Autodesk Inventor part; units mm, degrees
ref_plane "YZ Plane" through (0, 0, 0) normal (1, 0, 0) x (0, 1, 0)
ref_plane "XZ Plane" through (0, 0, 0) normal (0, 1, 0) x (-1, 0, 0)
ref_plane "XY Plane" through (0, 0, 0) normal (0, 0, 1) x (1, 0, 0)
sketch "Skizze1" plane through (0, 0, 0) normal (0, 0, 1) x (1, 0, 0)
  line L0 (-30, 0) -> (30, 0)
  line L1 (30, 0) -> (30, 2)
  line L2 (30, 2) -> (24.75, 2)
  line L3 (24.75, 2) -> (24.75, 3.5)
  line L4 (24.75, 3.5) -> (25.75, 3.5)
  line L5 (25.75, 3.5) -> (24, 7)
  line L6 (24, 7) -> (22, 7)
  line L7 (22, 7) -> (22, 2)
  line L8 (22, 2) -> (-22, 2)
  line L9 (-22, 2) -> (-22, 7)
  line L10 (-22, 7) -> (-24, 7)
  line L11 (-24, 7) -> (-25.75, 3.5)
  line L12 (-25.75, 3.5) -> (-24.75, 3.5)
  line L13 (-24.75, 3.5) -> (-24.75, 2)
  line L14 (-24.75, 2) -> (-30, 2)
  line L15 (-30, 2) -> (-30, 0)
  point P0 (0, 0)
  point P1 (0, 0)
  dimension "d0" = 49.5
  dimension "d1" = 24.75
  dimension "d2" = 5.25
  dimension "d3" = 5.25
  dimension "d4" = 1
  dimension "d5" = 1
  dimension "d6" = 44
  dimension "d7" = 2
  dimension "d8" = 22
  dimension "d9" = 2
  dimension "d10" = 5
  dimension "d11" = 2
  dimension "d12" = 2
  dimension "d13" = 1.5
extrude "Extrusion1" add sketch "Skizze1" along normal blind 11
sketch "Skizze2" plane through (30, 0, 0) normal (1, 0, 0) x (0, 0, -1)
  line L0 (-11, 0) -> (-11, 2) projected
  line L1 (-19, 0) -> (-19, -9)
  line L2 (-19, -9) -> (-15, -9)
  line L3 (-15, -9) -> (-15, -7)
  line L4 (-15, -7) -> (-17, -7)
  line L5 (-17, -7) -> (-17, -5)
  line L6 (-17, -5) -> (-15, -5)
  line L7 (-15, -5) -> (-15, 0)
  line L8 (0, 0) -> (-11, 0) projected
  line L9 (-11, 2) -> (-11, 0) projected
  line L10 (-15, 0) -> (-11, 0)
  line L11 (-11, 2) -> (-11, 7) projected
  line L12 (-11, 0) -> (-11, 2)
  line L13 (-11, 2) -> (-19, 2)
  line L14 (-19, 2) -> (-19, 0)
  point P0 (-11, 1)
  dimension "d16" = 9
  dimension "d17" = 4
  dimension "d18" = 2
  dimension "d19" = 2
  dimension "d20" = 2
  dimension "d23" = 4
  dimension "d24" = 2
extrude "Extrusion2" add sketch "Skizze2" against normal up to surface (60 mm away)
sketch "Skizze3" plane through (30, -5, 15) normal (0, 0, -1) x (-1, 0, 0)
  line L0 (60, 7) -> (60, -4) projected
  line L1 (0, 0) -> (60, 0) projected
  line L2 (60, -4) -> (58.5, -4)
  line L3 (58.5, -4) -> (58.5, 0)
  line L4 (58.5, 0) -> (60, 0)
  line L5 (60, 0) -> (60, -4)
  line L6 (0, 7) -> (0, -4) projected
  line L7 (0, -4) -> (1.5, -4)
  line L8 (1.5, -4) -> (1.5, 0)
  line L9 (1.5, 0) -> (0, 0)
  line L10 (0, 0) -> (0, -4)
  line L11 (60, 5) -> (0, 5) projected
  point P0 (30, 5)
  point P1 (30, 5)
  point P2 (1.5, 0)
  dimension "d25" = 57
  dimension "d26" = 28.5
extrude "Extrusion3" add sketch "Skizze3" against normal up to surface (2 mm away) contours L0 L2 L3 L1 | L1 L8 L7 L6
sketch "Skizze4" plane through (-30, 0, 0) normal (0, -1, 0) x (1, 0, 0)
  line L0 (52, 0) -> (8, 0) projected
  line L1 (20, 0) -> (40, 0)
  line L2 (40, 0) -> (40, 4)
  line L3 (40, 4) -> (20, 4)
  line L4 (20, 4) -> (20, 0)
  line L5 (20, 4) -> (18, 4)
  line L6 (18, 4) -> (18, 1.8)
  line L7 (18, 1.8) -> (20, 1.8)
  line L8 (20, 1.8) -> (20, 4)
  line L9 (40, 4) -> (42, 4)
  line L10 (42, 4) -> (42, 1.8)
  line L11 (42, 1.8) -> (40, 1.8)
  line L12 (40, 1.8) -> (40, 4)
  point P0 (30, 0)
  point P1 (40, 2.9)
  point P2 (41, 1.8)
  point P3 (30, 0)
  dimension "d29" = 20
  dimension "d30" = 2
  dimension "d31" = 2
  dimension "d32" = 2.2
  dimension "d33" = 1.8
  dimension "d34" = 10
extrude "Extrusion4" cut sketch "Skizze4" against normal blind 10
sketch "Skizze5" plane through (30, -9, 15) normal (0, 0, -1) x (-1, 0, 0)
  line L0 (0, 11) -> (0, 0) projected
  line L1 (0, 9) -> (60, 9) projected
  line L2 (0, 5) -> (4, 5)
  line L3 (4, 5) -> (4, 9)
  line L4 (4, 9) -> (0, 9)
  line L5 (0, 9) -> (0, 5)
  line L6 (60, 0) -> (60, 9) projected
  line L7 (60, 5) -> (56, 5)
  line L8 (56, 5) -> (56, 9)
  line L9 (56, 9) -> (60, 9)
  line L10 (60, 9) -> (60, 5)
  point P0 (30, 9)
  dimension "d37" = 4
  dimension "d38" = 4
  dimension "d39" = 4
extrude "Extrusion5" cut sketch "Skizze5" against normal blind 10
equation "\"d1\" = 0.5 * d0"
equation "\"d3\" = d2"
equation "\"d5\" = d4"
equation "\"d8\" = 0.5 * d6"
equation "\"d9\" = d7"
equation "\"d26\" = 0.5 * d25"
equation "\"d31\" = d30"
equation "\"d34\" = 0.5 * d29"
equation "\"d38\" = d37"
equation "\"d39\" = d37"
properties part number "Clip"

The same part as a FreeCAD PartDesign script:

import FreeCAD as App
import Part
import Sketcher

V = App.Vector
Q = App.Units.Quantity

doc = App.newDocument("Part")
body = doc.addObject("PartDesign::Body", "Body")

sketch1 = body.newObject("Sketcher::SketchObject", "Sketch")
sketch1.AttachmentSupport = (doc.getObject("XY_Plane"), [""])
sketch1.MapMode = "FlatFace"
sketch1.addGeometry(Part.LineSegment(V(-30, 2, 0), V(-30, 0, 0)), False)
sketch1.addGeometry(Part.LineSegment(V(-30, 0, 0), V(30, 0, 0)), False)
sketch1.addGeometry(Part.LineSegment(V(30, 0, 0), V(30, 2, 0)), False)
sketch1.addGeometry(Part.LineSegment(V(30, 2, 0), V(24.8, 2, 0)), False)
sketch1.addGeometry(Part.LineSegment(V(24.8, 2, 0), V(24.8, 3.5, 0)), False)
sketch1.addGeometry(Part.LineSegment(V(24.8, 3.5, 0), V(25.8, 3.5, 0)), False)
sketch1.addGeometry(Part.LineSegment(V(25.8, 3.5, 0), V(24, 7, 0)), False)
sketch1.addGeometry(Part.LineSegment(V(24, 7, 0), V(22, 7, 0)), False)
sketch1.addGeometry(Part.LineSegment(V(22, 7, 0), V(22, 2, 0)), False)
sketch1.addGeometry(Part.LineSegment(V(22, 2, 0), V(-22, 2, 0)), False)
sketch1.addGeometry(Part.LineSegment(V(-22, 2, 0), V(-22, 7, 0)), False)
sketch1.addGeometry(Part.LineSegment(V(-22, 7, 0), V(-24, 7, 0)), False)
sketch1.addGeometry(Part.LineSegment(V(-24, 7, 0), V(-25.8, 3.5, 0)), False)
sketch1.addGeometry(Part.LineSegment(V(-25.8, 3.5, 0), V(-24.8, 3.5, 0)), False)
sketch1.addGeometry(Part.LineSegment(V(-24.8, 3.5, 0), V(-24.8, 2, 0)), False)
sketch1.addGeometry(Part.LineSegment(V(-24.8, 2, 0), V(-30, 2, 0)), False)
sketch1.addConstraint(Sketcher.Constraint("Coincident", 0, 2, 1, 1))
sketch1.addConstraint(Sketcher.Constraint("Coincident", 1, 2, 2, 1))
sketch1.addConstraint(Sketcher.Constraint("Coincident", 2, 2, 3, 1))
sketch1.addConstraint(Sketcher.Constraint("Coincident", 3, 2, 4, 1))
sketch1.addConstraint(Sketcher.Constraint("Coincident", 4, 2, 5, 1))
sketch1.addConstraint(Sketcher.Constraint("Coincident", 5, 2, 6, 1))
sketch1.addConstraint(Sketcher.Constraint("Coincident", 6, 2, 7, 1))
sketch1.addConstraint(Sketcher.Constraint("Coincident", 7, 2, 8, 1))
sketch1.addConstraint(Sketcher.Constraint("Coincident", 8, 2, 9, 1))
sketch1.addConstraint(Sketcher.Constraint("Coincident", 9, 2, 10, 1))
sketch1.addConstraint(Sketcher.Constraint("Coincident", 10, 2, 11, 1))
sketch1.addConstraint(Sketcher.Constraint("Coincident", 11, 2, 12, 1))
sketch1.addConstraint(Sketcher.Constraint("Coincident", 12, 2, 13, 1))
sketch1.addConstraint(Sketcher.Constraint("Coincident", 13, 2, 14, 1))
sketch1.addConstraint(Sketcher.Constraint("Coincident", 14, 2, 15, 1))
sketch1.addConstraint(Sketcher.Constraint("Coincident", 15, 2, 0, 1))
sketch1.addConstraint(Sketcher.Constraint("Vertical", 0))
sketch1.addConstraint(Sketcher.Constraint("Horizontal", 1))
sketch1.addConstraint(Sketcher.Constraint("Vertical", 2))
sketch1.addConstraint(Sketcher.Constraint("Horizontal", 3))
sketch1.addConstraint(Sketcher.Constraint("Vertical", 4))
sketch1.addConstraint(Sketcher.Constraint("Horizontal", 5))
sketch1.addConstraint(Sketcher.Constraint("Horizontal", 7))
sketch1.addConstraint(Sketcher.Constraint("Vertical", 8))
sketch1.addConstraint(Sketcher.Constraint("Horizontal", 9))
sketch1.addConstraint(Sketcher.Constraint("Vertical", 10))
sketch1.addConstraint(Sketcher.Constraint("Horizontal", 11))
sketch1.addConstraint(Sketcher.Constraint("Horizontal", 13))
sketch1.addConstraint(Sketcher.Constraint("Vertical", 14))
sketch1.addConstraint(Sketcher.Constraint("Horizontal", 15))
sketch1.addConstraint(Sketcher.Constraint("Symmetric", 0, 2, 1, 2, -1, 1))
sketch1.addConstraint(Sketcher.Constraint("Symmetric", 7, 2, 10, 2, -2))
sketch1.addConstraint(Sketcher.Constraint("Symmetric", 5, 2, 12, 2, -2))
sketch1.addConstraint(Sketcher.Constraint("Symmetric", 3, 2, 14, 2, -2))
sketch1.addConstraint(Sketcher.Constraint("Horizontal", 3, 2, 8, 2))
sketch1.addConstraint(Sketcher.Constraint("Equal", 7, 11))
sketch1.addConstraint(Sketcher.Constraint("Equal", 11, 0))
sketch1.addConstraint(Sketcher.Constraint("DistanceX", 5, 1, 5, 2, Q("1 mm")))
sketch1.addConstraint(Sketcher.Constraint("DistanceX", 7, 2, 7, 1, Q("2 mm")))
sketch1.addConstraint(Sketcher.Constraint("DistanceX", 9, 2, 9, 1, Q("44 mm")))
sketch1.addConstraint(Sketcher.Constraint("DistanceY", 8, 2, 8, 1, Q("5 mm")))
sketch1.addConstraint(Sketcher.Constraint("DistanceY", 4, 1, 4, 2, Q("1.5 mm")))
sketch1.addConstraint(Sketcher.Constraint("DistanceX", 3, 2, 3, 1, Q("5.25 mm")))
sketch1.addConstraint(Sketcher.Constraint("DistanceX", 1, 1, 1, 2, Q("60 mm")))
pad1 = body.newObject("PartDesign::Pad", "Pad")
pad1.Profile = sketch1
pad1.Length = 11

sketch2 = body.newObject("Sketcher::SketchObject", "Sketch001")
sketch2.AttachmentSupport = (doc.getObject("YZ_Plane"), [""])
sketch2.MapMode = "FlatFace"
sketch2.AttachmentOffset = App.Placement(V(0, 0, 30), App.Rotation())
sketch2.addGeometry(Part.LineSegment(V(0, 15, 0), V(0, 11, 0)), False)
sketch2.addGeometry(Part.LineSegment(V(0, 11, 0), V(2, 11, 0)), False)
sketch2.addGeometry(Part.LineSegment(V(2, 11, 0), V(2, 19, 0)), False)
sketch2.addGeometry(Part.LineSegment(V(2, 19, 0), V(-9, 19, 0)), False)
sketch2.addGeometry(Part.LineSegment(V(-9, 19, 0), V(-9, 15, 0)), False)
sketch2.addGeometry(Part.LineSegment(V(-9, 15, 0), V(-7, 15, 0)), False)
sketch2.addGeometry(Part.LineSegment(V(-7, 15, 0), V(-7, 17, 0)), False)
sketch2.addGeometry(Part.LineSegment(V(-7, 17, 0), V(-5, 17, 0)), False)
sketch2.addGeometry(Part.LineSegment(V(-5, 17, 0), V(-5, 15, 0)), False)
sketch2.addGeometry(Part.LineSegment(V(-5, 15, 0), V(0, 15, 0)), False)
sketch2.addConstraint(Sketcher.Constraint("Coincident", 0, 2, 1, 1))
sketch2.addConstraint(Sketcher.Constraint("Coincident", 1, 2, 2, 1))
sketch2.addConstraint(Sketcher.Constraint("Coincident", 2, 2, 3, 1))
sketch2.addConstraint(Sketcher.Constraint("Coincident", 3, 2, 4, 1))
sketch2.addConstraint(Sketcher.Constraint("Coincident", 4, 2, 5, 1))
sketch2.addConstraint(Sketcher.Constraint("Coincident", 5, 2, 6, 1))
sketch2.addConstraint(Sketcher.Constraint("Coincident", 6, 2, 7, 1))
sketch2.addConstraint(Sketcher.Constraint("Coincident", 7, 2, 8, 1))
sketch2.addConstraint(Sketcher.Constraint("Coincident", 8, 2, 9, 1))
sketch2.addConstraint(Sketcher.Constraint("Coincident", 9, 2, 0, 1))
sketch2.addConstraint(Sketcher.Constraint("Vertical", 0))
sketch2.addConstraint(Sketcher.Constraint("Horizontal", 1))
sketch2.addConstraint(Sketcher.Constraint("Vertical", 2))
sketch2.addConstraint(Sketcher.Constraint("Horizontal", 3))
sketch2.addConstraint(Sketcher.Constraint("Vertical", 4))
sketch2.addConstraint(Sketcher.Constraint("Horizontal", 5))
sketch2.addConstraint(Sketcher.Constraint("Vertical", 6))
sketch2.addConstraint(Sketcher.Constraint("Horizontal", 7))
sketch2.addConstraint(Sketcher.Constraint("Vertical", 8))
sketch2.addConstraint(Sketcher.Constraint("Horizontal", 9))
sketch2.addConstraint(Sketcher.Constraint("PointOnObject", 0, 2, -2))
sketch2.addConstraint(Sketcher.Constraint("Horizontal", 5, 2, 8, 2))
sketch2.addConstraint(Sketcher.Constraint("Equal", 1, 5))
sketch2.addConstraint(Sketcher.Constraint("Equal", 5, 7))
sketch2.addConstraint(Sketcher.Constraint("Equal", 0, 4))
sketch2.addConstraint(Sketcher.Constraint("Equal", 7, 6))
sketch2.addConstraint(Sketcher.Constraint("DistanceX", 1, 1, 1, 2, Q("2 mm")))
sketch2.addConstraint(Sketcher.Constraint("DistanceY", 0, 2, 0, 1, Q("4 mm")))
sketch2.addConstraint(Sketcher.Constraint("DistanceX", 3, 2, -1, 1, Q("9 mm")))
sketch2.addConstraint(Sketcher.Constraint("DistanceY", -1, 1, 0, 2, Q("11 mm")))
pad2 = body.newObject("PartDesign::Pad", "Pad001")
pad2.Profile = sketch2
pad2.Length = 60
pad2.Reversed = True

sketch3 = body.newObject("Sketcher::SketchObject", "Sketch002")
sketch3.AttachmentSupport = (doc.getObject("XY_Plane"), [""])
sketch3.MapMode = "FlatFace"
sketch3.AttachmentOffset = App.Placement(V(0, 0, 15), App.Rotation())
sketch3.addGeometry(Part.LineSegment(V(-30, -9, 0), V(-30, -5, 0)), False)
sketch3.addGeometry(Part.LineSegment(V(-30, -5, 0), V(-28.5, -5, 0)), False)
sketch3.addGeometry(Part.LineSegment(V(-28.5, -5, 0), V(-28.5, -9, 0)), False)
sketch3.addGeometry(Part.LineSegment(V(-28.5, -9, 0), V(-30, -9, 0)), False)
sketch3.addGeometry(Part.LineSegment(V(28.5, -5, 0), V(30, -5, 0)), False)
sketch3.addGeometry(Part.LineSegment(V(30, -5, 0), V(30, -9, 0)), False)
sketch3.addGeometry(Part.LineSegment(V(30, -9, 0), V(28.5, -9, 0)), False)
sketch3.addGeometry(Part.LineSegment(V(28.5, -9, 0), V(28.5, -5, 0)), False)
sketch3.addConstraint(Sketcher.Constraint("Coincident", 0, 2, 1, 1))
sketch3.addConstraint(Sketcher.Constraint("Coincident", 1, 2, 2, 1))
sketch3.addConstraint(Sketcher.Constraint("Coincident", 2, 2, 3, 1))
sketch3.addConstraint(Sketcher.Constraint("Coincident", 3, 2, 0, 1))
sketch3.addConstraint(Sketcher.Constraint("Coincident", 4, 2, 5, 1))
sketch3.addConstraint(Sketcher.Constraint("Coincident", 5, 2, 6, 1))
sketch3.addConstraint(Sketcher.Constraint("Coincident", 6, 2, 7, 1))
sketch3.addConstraint(Sketcher.Constraint("Coincident", 7, 2, 4, 1))
sketch3.addConstraint(Sketcher.Constraint("Vertical", 0))
sketch3.addConstraint(Sketcher.Constraint("Horizontal", 1))
sketch3.addConstraint(Sketcher.Constraint("Vertical", 2))
sketch3.addConstraint(Sketcher.Constraint("Horizontal", 3))
sketch3.addConstraint(Sketcher.Constraint("Horizontal", 4))
sketch3.addConstraint(Sketcher.Constraint("Vertical", 5))
sketch3.addConstraint(Sketcher.Constraint("Horizontal", 6))
sketch3.addConstraint(Sketcher.Constraint("Vertical", 7))
sketch3.addConstraint(Sketcher.Constraint("Symmetric", 0, 2, 4, 2, -2))
sketch3.addConstraint(Sketcher.Constraint("Symmetric", 2, 2, 6, 2, -2))
sketch3.addConstraint(Sketcher.Constraint("DistanceX", 2, 2, 6, 2, Q("57 mm")))
sketch3.addConstraint(Sketcher.Constraint("DistanceY", 0, 1, 0, 2, Q("4 mm")))
sketch3.addConstraint(Sketcher.Constraint("DistanceX", 1, 1, 1, 2, Q("1.5 mm")))
sketch3.addConstraint(Sketcher.Constraint("DistanceY", 0, 2, -1, 1, Q("5 mm")))
pad3 = body.newObject("PartDesign::Pad", "Pad002")
pad3.Profile = sketch3
pad3.Length = 2

sketch4 = body.newObject("Sketcher::SketchObject", "Sketch003")
sketch4.AttachmentSupport = (doc.getObject("XZ_Plane"), [""])
sketch4.MapMode = "FlatFace"
sketch4.addGeometry(Part.LineSegment(V(-10, 0, 0), V(10, 0, 0)), False)
sketch4.addGeometry(Part.LineSegment(V(10, 0, 0), V(10, 1.8, 0)), False)
sketch4.addGeometry(Part.LineSegment(V(10, 1.8, 0), V(12, 1.8, 0)), False)
sketch4.addGeometry(Part.LineSegment(V(12, 1.8, 0), V(12, 4, 0)), False)
sketch4.addGeometry(Part.LineSegment(V(12, 4, 0), V(-12, 4, 0)), False)
sketch4.addGeometry(Part.LineSegment(V(-12, 4, 0), V(-12, 1.8, 0)), False)
sketch4.addGeometry(Part.LineSegment(V(-12, 1.8, 0), V(-10, 1.8, 0)), False)
sketch4.addGeometry(Part.LineSegment(V(-10, 1.8, 0), V(-10, 0, 0)), False)
sketch4.addConstraint(Sketcher.Constraint("Coincident", 0, 2, 1, 1))
sketch4.addConstraint(Sketcher.Constraint("Coincident", 1, 2, 2, 1))
sketch4.addConstraint(Sketcher.Constraint("Coincident", 2, 2, 3, 1))
sketch4.addConstraint(Sketcher.Constraint("Coincident", 3, 2, 4, 1))
sketch4.addConstraint(Sketcher.Constraint("Coincident", 4, 2, 5, 1))
sketch4.addConstraint(Sketcher.Constraint("Coincident", 5, 2, 6, 1))
sketch4.addConstraint(Sketcher.Constraint("Coincident", 6, 2, 7, 1))
sketch4.addConstraint(Sketcher.Constraint("Coincident", 7, 2, 0, 1))
sketch4.addConstraint(Sketcher.Constraint("Horizontal", 0))
sketch4.addConstraint(Sketcher.Constraint("Vertical", 1))
sketch4.addConstraint(Sketcher.Constraint("Horizontal", 2))
sketch4.addConstraint(Sketcher.Constraint("Vertical", 3))
sketch4.addConstraint(Sketcher.Constraint("Horizontal", 4))
sketch4.addConstraint(Sketcher.Constraint("Vertical", 5))
sketch4.addConstraint(Sketcher.Constraint("Horizontal", 6))
sketch4.addConstraint(Sketcher.Constraint("Vertical", 7))
sketch4.addConstraint(Sketcher.Constraint("Symmetric", 0, 2, 7, 2, -1, 1))
sketch4.addConstraint(Sketcher.Constraint("Symmetric", 2, 2, 5, 2, -2))
sketch4.addConstraint(Sketcher.Constraint("DistanceX", 0, 1, 0, 2, Q("20 mm")))
sketch4.addConstraint(Sketcher.Constraint("DistanceX", 2, 1, 2, 2, Q("2 mm")))
sketch4.addConstraint(Sketcher.Constraint("DistanceY", 1, 1, 1, 2, Q("1.8 mm")))
sketch4.addConstraint(Sketcher.Constraint("DistanceY", 3, 1, 3, 2, Q("2.2 mm")))
pocket1 = body.newObject("PartDesign::Pocket", "Pocket")
pocket1.Profile = sketch4
pocket1.Length = 10

sketch5 = body.newObject("Sketcher::SketchObject", "Sketch004")
sketch5.AttachmentSupport = (doc.getObject("XY_Plane"), [""])
sketch5.MapMode = "FlatFace"
sketch5.AttachmentOffset = App.Placement(V(0, 0, 15), App.Rotation())
sketch5.addGeometry(Part.LineSegment(V(26, 0, 0), V(30, 0, 0)), False)
sketch5.addGeometry(Part.LineSegment(V(30, 0, 0), V(30, -4, 0)), False)
sketch5.addGeometry(Part.LineSegment(V(30, -4, 0), V(26, -4, 0)), False)
sketch5.addGeometry(Part.LineSegment(V(26, -4, 0), V(26, 0, 0)), False)
sketch5.addGeometry(Part.LineSegment(V(-30, 0, 0), V(-26, 0, 0)), False)
sketch5.addGeometry(Part.LineSegment(V(-26, 0, 0), V(-26, -4, 0)), False)
sketch5.addGeometry(Part.LineSegment(V(-26, -4, 0), V(-30, -4, 0)), False)
sketch5.addGeometry(Part.LineSegment(V(-30, -4, 0), V(-30, 0, 0)), False)
sketch5.addConstraint(Sketcher.Constraint("Coincident", 0, 2, 1, 1))
sketch5.addConstraint(Sketcher.Constraint("Coincident", 1, 2, 2, 1))
sketch5.addConstraint(Sketcher.Constraint("Coincident", 2, 2, 3, 1))
sketch5.addConstraint(Sketcher.Constraint("Coincident", 3, 2, 0, 1))
sketch5.addConstraint(Sketcher.Constraint("Coincident", 4, 2, 5, 1))
sketch5.addConstraint(Sketcher.Constraint("Coincident", 5, 2, 6, 1))
sketch5.addConstraint(Sketcher.Constraint("Coincident", 6, 2, 7, 1))
sketch5.addConstraint(Sketcher.Constraint("Coincident", 7, 2, 4, 1))
sketch5.addConstraint(Sketcher.Constraint("Horizontal", 0))
sketch5.addConstraint(Sketcher.Constraint("Vertical", 1))
sketch5.addConstraint(Sketcher.Constraint("Horizontal", 2))
sketch5.addConstraint(Sketcher.Constraint("Vertical", 3))
sketch5.addConstraint(Sketcher.Constraint("Horizontal", 4))
sketch5.addConstraint(Sketcher.Constraint("Vertical", 5))
sketch5.addConstraint(Sketcher.Constraint("Horizontal", 6))
sketch5.addConstraint(Sketcher.Constraint("Vertical", 7))
sketch5.addConstraint(Sketcher.Constraint("Symmetric", 3, 2, 4, 2, -1, 1))
sketch5.addConstraint(Sketcher.Constraint("Symmetric", 1, 2, 6, 2, -2))
sketch5.addConstraint(Sketcher.Constraint("PointOnObject", 0, 2, -1))
sketch5.addConstraint(Sketcher.Constraint("Equal", 6, 1))
sketch5.addConstraint(Sketcher.Constraint("DistanceX", 0, 1, 0, 2, Q("4 mm")))
sketch5.addConstraint(Sketcher.Constraint("DistanceX", -1, 1, 0, 2, Q("30 mm")))
pocket2 = body.newObject("PartDesign::Pocket", "Pocket001")
pocket2.Profile = sketch5
pocket2.Length = 10
pocket2.Reversed = True

doc.recompute()
